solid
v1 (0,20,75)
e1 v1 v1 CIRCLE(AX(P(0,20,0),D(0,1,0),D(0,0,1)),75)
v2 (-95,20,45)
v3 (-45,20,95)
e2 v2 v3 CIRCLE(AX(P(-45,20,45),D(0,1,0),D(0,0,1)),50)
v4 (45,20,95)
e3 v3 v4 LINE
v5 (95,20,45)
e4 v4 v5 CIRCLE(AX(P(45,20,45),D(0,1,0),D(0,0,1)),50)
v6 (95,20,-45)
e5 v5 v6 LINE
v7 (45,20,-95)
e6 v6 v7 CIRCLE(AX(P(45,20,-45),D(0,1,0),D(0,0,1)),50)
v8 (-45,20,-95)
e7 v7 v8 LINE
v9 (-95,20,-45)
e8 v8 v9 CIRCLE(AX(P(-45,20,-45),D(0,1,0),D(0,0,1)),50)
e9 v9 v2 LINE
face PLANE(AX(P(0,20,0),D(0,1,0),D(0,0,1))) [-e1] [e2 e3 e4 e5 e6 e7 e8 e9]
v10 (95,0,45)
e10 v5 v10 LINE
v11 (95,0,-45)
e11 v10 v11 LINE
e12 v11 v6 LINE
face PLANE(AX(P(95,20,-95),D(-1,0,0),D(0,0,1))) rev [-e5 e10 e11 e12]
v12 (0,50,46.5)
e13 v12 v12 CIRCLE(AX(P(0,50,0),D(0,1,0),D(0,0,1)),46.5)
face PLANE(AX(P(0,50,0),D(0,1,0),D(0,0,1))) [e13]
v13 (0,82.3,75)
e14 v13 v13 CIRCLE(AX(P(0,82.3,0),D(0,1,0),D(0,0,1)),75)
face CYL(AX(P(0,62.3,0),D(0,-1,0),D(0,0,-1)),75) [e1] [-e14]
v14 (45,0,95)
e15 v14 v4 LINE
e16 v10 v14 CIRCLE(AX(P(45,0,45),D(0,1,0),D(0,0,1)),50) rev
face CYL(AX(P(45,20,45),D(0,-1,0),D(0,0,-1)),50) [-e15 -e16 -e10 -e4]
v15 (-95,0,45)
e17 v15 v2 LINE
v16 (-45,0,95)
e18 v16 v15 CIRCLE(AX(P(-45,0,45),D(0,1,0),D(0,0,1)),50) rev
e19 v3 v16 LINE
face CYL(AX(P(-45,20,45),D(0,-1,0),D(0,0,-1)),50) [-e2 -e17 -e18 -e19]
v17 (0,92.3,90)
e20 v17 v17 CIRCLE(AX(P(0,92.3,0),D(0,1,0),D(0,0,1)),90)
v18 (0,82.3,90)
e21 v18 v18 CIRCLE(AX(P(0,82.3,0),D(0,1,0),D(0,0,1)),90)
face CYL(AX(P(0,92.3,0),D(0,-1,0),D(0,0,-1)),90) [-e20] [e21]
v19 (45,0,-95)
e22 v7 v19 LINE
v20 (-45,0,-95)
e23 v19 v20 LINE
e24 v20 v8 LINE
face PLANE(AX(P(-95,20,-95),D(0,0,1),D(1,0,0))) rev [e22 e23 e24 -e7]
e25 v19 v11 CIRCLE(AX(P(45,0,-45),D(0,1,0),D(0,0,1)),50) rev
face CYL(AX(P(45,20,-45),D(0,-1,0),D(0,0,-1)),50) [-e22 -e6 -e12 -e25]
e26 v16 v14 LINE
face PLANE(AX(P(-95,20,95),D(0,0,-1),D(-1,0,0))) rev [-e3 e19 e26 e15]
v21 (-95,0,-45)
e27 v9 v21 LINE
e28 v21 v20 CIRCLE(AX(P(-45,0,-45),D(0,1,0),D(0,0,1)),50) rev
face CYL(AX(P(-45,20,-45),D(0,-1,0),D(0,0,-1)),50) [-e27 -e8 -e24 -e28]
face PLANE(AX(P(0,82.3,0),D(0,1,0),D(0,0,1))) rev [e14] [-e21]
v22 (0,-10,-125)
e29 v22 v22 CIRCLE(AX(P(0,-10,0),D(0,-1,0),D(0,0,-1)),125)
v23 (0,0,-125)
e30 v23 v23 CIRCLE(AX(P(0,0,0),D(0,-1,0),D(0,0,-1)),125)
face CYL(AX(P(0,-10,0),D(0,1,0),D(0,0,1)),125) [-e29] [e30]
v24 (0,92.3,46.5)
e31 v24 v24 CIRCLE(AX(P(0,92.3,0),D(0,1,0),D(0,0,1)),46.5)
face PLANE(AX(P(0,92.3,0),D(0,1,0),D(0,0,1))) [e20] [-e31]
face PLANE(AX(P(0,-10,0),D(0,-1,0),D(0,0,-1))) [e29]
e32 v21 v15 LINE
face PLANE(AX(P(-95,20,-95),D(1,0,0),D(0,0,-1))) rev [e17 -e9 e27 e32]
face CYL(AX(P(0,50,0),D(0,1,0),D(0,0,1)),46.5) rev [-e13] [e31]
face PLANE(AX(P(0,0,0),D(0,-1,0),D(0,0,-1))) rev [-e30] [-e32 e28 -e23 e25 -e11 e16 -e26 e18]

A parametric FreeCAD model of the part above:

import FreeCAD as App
import Part
import Sketcher

V = App.Vector
Q = App.Units.Quantity


def edges_at(feature, points):
    """Names of the edges that pass closest to the given points."""
    edges = feature.Shape.Edges
    near = lambda p: min(range(len(edges)), key=lambda i: edges[i].distToShape(Part.Vertex(*p))[0])
    return sorted({f"Edge{near(p) + 1}" for p in points})

doc = App.newDocument("Part")
body = doc.addObject("PartDesign::Body", "Body")

sketch1 = doc.addObject("Sketcher::SketchObject", "Sketch")
body.addObject(sketch1)
sketch1.AttachmentSupport = (doc.XZ_Plane, [""])
sketch1.MapMode = "FlatFace"
sketch1.addGeometry([
    Part.LineSegment(V(-95, -95, 0), V(-95, 95, 0)),
    Part.LineSegment(V(-95, 95, 0), V(95, 95, 0)),
    Part.LineSegment(V(95, 95, 0), V(95, -95, 0)),
    Part.LineSegment(V(95, -95, 0), V(-95, -95, 0)),
], False)
sketch1.addConstraint([
    Sketcher.Constraint("Coincident", 0, 2, 1, 1),
    Sketcher.Constraint("Coincident", 1, 2, 2, 1),
    Sketcher.Constraint("Coincident", 2, 2, 3, 1),
    Sketcher.Constraint("Coincident", 3, 2, 0, 1),
    Sketcher.Constraint("Vertical", 0),
    Sketcher.Constraint("Horizontal", 1),
    Sketcher.Constraint("Vertical", 2),
    Sketcher.Constraint("Horizontal", 3),
    Sketcher.Constraint("Symmetric", 0, 2, 2, 2, -1, 1),
    Sketcher.Constraint("Equal", 3, 0),
    Sketcher.Constraint("DistanceX", 1, 1, 1, 2, Q("190 mm")),
])
pad1 = doc.addObject("PartDesign::Pad", "Pad")
body.addObject(pad1)
pad1.Profile = sketch1
pad1.Length = 20
pad1.Reversed = True
doc.recompute()

fillet = doc.addObject("PartDesign::Fillet", "Fillet")
body.addObject(fillet)
fillet.Base = (pad1, edges_at(pad1, [
    (95, 10, 95),
    (-95, 10, 95),
    (-95, 10, -95),
    (95, 10, -95),
]))
fillet.Radius = 50

sketch2 = doc.addObject("Sketcher::SketchObject", "Sketch001")
body.addObject(sketch2)
sketch2.AttachmentSupport = (doc.XZ_Plane, [""])
sketch2.MapMode = "FlatFace"
sketch2.AttachmentOffset = App.Placement(V(0, 0, -20), App.Rotation())
sketch2.addGeometry(Part.Circle(V(0, 0, 0), V(0, 0, 1), 75), False)
sketch2.addConstraint([
    Sketcher.Constraint("Coincident", 0, 3, -1, 1),
    Sketcher.Constraint("Diameter", 0, Q("150 mm")),
])
pad2 = doc.addObject("PartDesign::Pad", "Pad001")
body.addObject(pad2)
pad2.Profile = sketch2
pad2.Length = 42.3
pad2.Reversed = True

sketch3 = doc.addObject("Sketcher::SketchObject", "Sketch002")
body.addObject(sketch3)
sketch3.AttachmentSupport = (doc.XZ_Plane, [""])
sketch3.MapMode = "FlatFace"
sketch3.AttachmentOffset = App.Placement(V(0, 0, -62.3), App.Rotation())
sketch3.addGeometry(Part.Circle(V(0, 0, 0), V(0, 0, 1), 75), False)
sketch3.addConstraint([
    Sketcher.Constraint("Coincident", 0, 3, -1, 1),
    Sketcher.Constraint("Diameter", 0, Q("150 mm")),
])
pad3 = doc.addObject("PartDesign::Pad", "Pad002")
body.addObject(pad3)
pad3.Profile = sketch3
pad3.Length = 20
pad3.Reversed = True

sketch4 = doc.addObject("Sketcher::SketchObject", "Sketch003")
body.addObject(sketch4)
sketch4.AttachmentSupport = (doc.XZ_Plane, [""])
sketch4.MapMode = "FlatFace"
sketch4.AttachmentOffset = App.Placement(V(0, 0, -82.3), App.Rotation())
sketch4.addGeometry(Part.Circle(V(0, 0, 0), V(0, 0, 1), 90), False)
sketch4.addConstraint([
    Sketcher.Constraint("Coincident", 0, 3, -1, 1),
    Sketcher.Constraint("Diameter", 0, Q("180 mm")),
])
pad4 = doc.addObject("PartDesign::Pad", "Pad003")
body.addObject(pad4)
pad4.Profile = sketch4
pad4.Length = 10
pad4.Reversed = True

sketch5 = doc.addObject("Sketcher::SketchObject", "Sketch004")
body.addObject(sketch5)
sketch5.AttachmentSupport = (doc.XZ_Plane, [""])
sketch5.MapMode = "FlatFace"
sketch5.AttachmentOffset = App.Placement(V(0, 0, -92.3), App.Rotation())
sketch5.addGeometry(Part.Circle(V(0, 0, 0), V(0, 0, 1), 46), False)
sketch5.addConstraint([
    Sketcher.Constraint("Coincident", 0, 3, -1, 1),
    Sketcher.Constraint("Diameter", 0, Q("93 mm")),
])
pocket1 = doc.addObject("PartDesign::Pocket", "Pocket")
body.addObject(pocket1)
pocket1.Profile = sketch5
pocket1.Length = 42.3
pocket1.Reversed = True

sketch6 = doc.addObject("Sketcher::SketchObject", "Sketch005")
body.addObject(sketch6)
sketch6.AttachmentSupport = (doc.XZ_Plane, [""])
sketch6.MapMode = "FlatFace"
sketch6.AttachmentOffset = App.Placement(V(0, 0, -82.3), App.Rotation())
sketch6.addGeometry(Part.Circle(V(0, 0, 0), V(0, 0, 1), 54), False)
sketch6.addConstraint([
    Sketcher.Constraint("Coincident", 0, 3, -1, 1),
    Sketcher.Constraint("Diameter", 0, Q("108 mm")),
])
pad5 = doc.addObject("PartDesign::Pad", "Pad004")
body.addObject(pad5)
pad5.Profile = sketch6
pad5.Length = 10
pad5.Reversed = True

sketch7 = doc.addObject("Sketcher::SketchObject", "Sketch006")
body.addObject(sketch7)
sketch7.AttachmentSupport = (doc.XZ_Plane, [""])
sketch7.MapMode = "FlatFace"
sketch7.AttachmentOffset = App.Placement(V(0, 0, -92.3), App.Rotation())
sketch7.addGeometry(Part.Circle(V(0, 0, 0), V(0, 0, 1), 46), False)
sketch7.addConstraint([
    Sketcher.Constraint("Coincident", 0, 3, -1, 1),
    Sketcher.Constraint("Diameter", 0, Q("93 mm")),
])
pocket2 = doc.addObject("PartDesign::Pocket", "Pocket001")
body.addObject(pocket2)
pocket2.Profile = sketch7
pocket2.Length = 41.3
pocket2.Reversed = True

sketch8 = doc.addObject("Sketcher::SketchObject", "Sketch007")
body.addObject(sketch8)
sketch8.AttachmentSupport = (doc.XZ_Plane, [""])
sketch8.MapMode = "FlatFace"
sketch8.addGeometry(Part.Circle(V(0, 0, 0), V(0, 0, 1), 125), False)
sketch8.addConstraint([
    Sketcher.Constraint("Coincident", 0, 3, -1, 1),
    Sketcher.Constraint("Diameter", 0, Q("250 mm")),
])
pad6 = doc.addObject("PartDesign::Pad", "Pad005")
body.addObject(pad6)
pad6.Profile = sketch8
pad6.Length = 10

doc.recompute()
